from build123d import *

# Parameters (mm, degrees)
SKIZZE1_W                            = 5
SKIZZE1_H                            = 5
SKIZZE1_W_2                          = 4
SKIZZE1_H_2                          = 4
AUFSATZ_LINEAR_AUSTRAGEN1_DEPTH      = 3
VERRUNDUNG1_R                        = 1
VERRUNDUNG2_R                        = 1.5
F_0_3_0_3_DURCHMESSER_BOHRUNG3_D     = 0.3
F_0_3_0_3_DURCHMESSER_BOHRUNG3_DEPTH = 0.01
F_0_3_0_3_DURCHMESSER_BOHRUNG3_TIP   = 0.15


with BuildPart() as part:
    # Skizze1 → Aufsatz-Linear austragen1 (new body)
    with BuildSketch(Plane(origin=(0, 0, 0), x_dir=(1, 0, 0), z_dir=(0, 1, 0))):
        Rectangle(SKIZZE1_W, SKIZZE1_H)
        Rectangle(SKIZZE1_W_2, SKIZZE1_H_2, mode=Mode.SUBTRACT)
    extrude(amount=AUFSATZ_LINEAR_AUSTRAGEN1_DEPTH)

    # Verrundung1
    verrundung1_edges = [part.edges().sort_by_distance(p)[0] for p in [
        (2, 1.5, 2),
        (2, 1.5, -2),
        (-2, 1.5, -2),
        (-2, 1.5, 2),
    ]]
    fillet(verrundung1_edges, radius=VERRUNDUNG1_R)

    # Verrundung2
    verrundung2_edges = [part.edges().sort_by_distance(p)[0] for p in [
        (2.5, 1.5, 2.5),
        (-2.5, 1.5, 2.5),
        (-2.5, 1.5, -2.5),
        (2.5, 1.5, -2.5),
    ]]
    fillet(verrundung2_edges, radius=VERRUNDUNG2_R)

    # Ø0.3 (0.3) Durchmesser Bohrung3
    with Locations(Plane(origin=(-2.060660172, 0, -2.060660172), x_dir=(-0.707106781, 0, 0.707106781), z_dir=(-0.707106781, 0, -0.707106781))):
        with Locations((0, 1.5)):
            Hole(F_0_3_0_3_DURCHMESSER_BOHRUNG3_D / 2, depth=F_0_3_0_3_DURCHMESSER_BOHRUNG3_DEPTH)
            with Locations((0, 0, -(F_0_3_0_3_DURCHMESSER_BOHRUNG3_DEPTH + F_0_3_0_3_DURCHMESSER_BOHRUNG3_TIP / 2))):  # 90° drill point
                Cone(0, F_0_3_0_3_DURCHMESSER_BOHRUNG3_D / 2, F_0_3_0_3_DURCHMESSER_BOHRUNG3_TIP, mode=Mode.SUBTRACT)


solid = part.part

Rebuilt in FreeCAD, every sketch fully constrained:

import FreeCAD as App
import Part
import Sketcher
from FreeCAD import Vector


def edges_at(feature, points):
    """Names of the edges that pass closest to the given points."""
    edges = feature.Shape.Edges
    near = lambda p: min(range(len(edges)), key=lambda i: edges[i].distToShape(Part.Vertex(*p))[0])
    return sorted({f"Edge{near(p) + 1}" for p in points})

doc = App.newDocument("Part")
params = doc.addObject("Spreadsheet::Sheet", "Params")
for row, (alias, value) in enumerate([
    ("sketch1_width", "5 mm"),
    ("sketch1_width2", "4 mm"),
    ("pad1_length", "3 mm"),
    ("fillet_radius", "1 mm"),
    ("fillet2_radius", "1.5 mm"),
    ("sketch2_diameter", "0.3 mm"),
    ("hole_diameter", "0.3 mm"),
    ("hole_depth", "0.01 mm"),
], start=1):
    params.set(f"A{row}", alias)
    params.set(f"B{row}", "=" + value)
    params.setAlias(f"B{row}", alias)

body = doc.addObject("PartDesign::Body", "Body")

sketch1 = doc.addObject("Sketcher::SketchObject", "Sketch")
body.addObject(sketch1)
sketch1.AttachmentSupport = (doc.XZ_Plane, [""])
sketch1.MapMode = "FlatFace"
sketch1.addGeometry(Part.LineSegment(Vector(-2.5, -2.5, 0), Vector(-2.5, 2.5, 0)), False)
sketch1.addGeometry(Part.LineSegment(Vector(-2.5, 2.5, 0), Vector(2.5, 2.5, 0)), False)
sketch1.addGeometry(Part.LineSegment(Vector(2.5, 2.5, 0), Vector(2.5, -2.5, 0)), False)
sketch1.addGeometry(Part.LineSegment(Vector(2.5, -2.5, 0), Vector(-2.5, -2.5, 0)), False)
sketch1.addGeometry(Part.LineSegment(Vector(2, 2, 0), Vector(-2, 2, 0)), False)
sketch1.addGeometry(Part.LineSegment(Vector(-2, 2, 0), Vector(-2, -2, 0)), False)
sketch1.addGeometry(Part.LineSegment(Vector(-2, -2, 0), Vector(2, -2, 0)), False)
sketch1.addGeometry(Part.LineSegment(Vector(2, -2, 0), Vector(2, 2, 0)), False)
sketch1.addConstraint(Sketcher.Constraint("Coincident", 0, 2, 1, 1))
sketch1.addConstraint(Sketcher.Constraint("Coincident", 1, 2, 2, 1))
sketch1.addConstraint(Sketcher.Constraint("Coincident", 2, 2, 3, 1))
sketch1.addConstraint(Sketcher.Constraint("Coincident", 3, 2, 0, 1))
sketch1.addConstraint(Sketcher.Constraint("Coincident", 4, 2, 5, 1))
sketch1.addConstraint(Sketcher.Constraint("Coincident", 5, 2, 6, 1))
sketch1.addConstraint(Sketcher.Constraint("Coincident", 6, 2, 7, 1))
sketch1.addConstraint(Sketcher.Constraint("Coincident", 7, 2, 4, 1))
sketch1.addConstraint(Sketcher.Constraint("Vertical", 0))
sketch1.addConstraint(Sketcher.Constraint("Horizontal", 1))
sketch1.addConstraint(Sketcher.Constraint("Vertical", 2))
sketch1.addConstraint(Sketcher.Constraint("Horizontal", 3))
sketch1.addConstraint(Sketcher.Constraint("Horizontal", 4))
sketch1.addConstraint(Sketcher.Constraint("Vertical", 5))
sketch1.addConstraint(Sketcher.Constraint("Horizontal", 6))
sketch1.addConstraint(Sketcher.Constraint("Vertical", 7))
sketch1.addConstraint(Sketcher.Constraint("Symmetric", 0, 2, 2, 2, -1, 1))
sketch1.addConstraint(Sketcher.Constraint("Symmetric", 4, 2, 6, 2, -1, 1))
sketch1.addConstraint(Sketcher.Constraint("Equal", 3, 0))
sketch1.addConstraint(Sketcher.Constraint("Equal", 6, 5))
sketch1.addConstraint(Sketcher.Constraint("DistanceX", 1, 1, 1, 2, 5.0))
sketch1.addConstraint(Sketcher.Constraint("DistanceX", 4, 2, 4, 1, 4.0))
sketch1.setExpression("Constraints[20]", "Params.sketch1_width")
sketch1.setExpression("Constraints[21]", "Params.sketch1_width2")
pad1 = doc.addObject("PartDesign::Pad", "Pad")
body.addObject(pad1)
pad1.Profile = sketch1
pad1.setExpression("Length", "Params.pad1_length")
pad1.Reversed = True
doc.recompute()

fillet = doc.addObject("PartDesign::Fillet", "Fillet")
body.addObject(fillet)
fillet.Base = (pad1, edges_at(pad1, [
    (2, 1.5, 2),
    (2, 1.5, -2),
    (-2, 1.5, -2),
    (-2, 1.5, 2),
]))
fillet.setExpression("Radius", "Params.fillet_radius")
doc.recompute()

fillet2 = doc.addObject("PartDesign::Fillet", "Fillet001")
body.addObject(fillet2)
fillet2.Base = (fillet, edges_at(fillet, [
    (2.5, 1.5, 2.5),
    (-2.5, 1.5, 2.5),
    (-2.5, 1.5, -2.5),
    (2.5, 1.5, -2.5),
]))
fillet2.setExpression("Radius", "Params.fillet2_radius")

sketch2 = doc.addObject("Sketcher::SketchObject", "Sketch001")
body.addObject(sketch2)
sketch2.Placement = App.Placement(Vector(-2.06066, 0, -2.06066), App.Rotation(Vector(-0.707106781, 0, 0.707106781), Vector(0, 0.999999999, 0), Vector(-0.707106781, 0, -0.707106781), "ZXY"))
sketch2.addGeometry(Part.Circle(Vector(0, 1.5, 0), Vector(0, 0, 1), 0.15), False)
sketch2.addConstraint(Sketcher.Constraint("PointOnObject", 0, 3, -2))
sketch2.addConstraint(Sketcher.Constraint("Diameter", 0, 0.3))
sketch2.addConstraint(Sketcher.Constraint("DistanceY", -1, 1, 0, 3, 1.5))
sketch2.setExpression("Constraints[1]", "Params.sketch2_diameter")
doc.recompute()
hole = doc.addObject("PartDesign::Hole", "Hole")
body.addObject(hole)
hole.Profile = sketch2
hole.ThreadType = "None"
hole.setExpression("Diameter", "Params.hole_diameter")
hole.DepthType = "Dimension"
hole.setExpression("Depth", "Params.hole_depth")
hole.DrillPoint = "Angled"
hole.DrillPointAngle = 90

doc.recompute()
